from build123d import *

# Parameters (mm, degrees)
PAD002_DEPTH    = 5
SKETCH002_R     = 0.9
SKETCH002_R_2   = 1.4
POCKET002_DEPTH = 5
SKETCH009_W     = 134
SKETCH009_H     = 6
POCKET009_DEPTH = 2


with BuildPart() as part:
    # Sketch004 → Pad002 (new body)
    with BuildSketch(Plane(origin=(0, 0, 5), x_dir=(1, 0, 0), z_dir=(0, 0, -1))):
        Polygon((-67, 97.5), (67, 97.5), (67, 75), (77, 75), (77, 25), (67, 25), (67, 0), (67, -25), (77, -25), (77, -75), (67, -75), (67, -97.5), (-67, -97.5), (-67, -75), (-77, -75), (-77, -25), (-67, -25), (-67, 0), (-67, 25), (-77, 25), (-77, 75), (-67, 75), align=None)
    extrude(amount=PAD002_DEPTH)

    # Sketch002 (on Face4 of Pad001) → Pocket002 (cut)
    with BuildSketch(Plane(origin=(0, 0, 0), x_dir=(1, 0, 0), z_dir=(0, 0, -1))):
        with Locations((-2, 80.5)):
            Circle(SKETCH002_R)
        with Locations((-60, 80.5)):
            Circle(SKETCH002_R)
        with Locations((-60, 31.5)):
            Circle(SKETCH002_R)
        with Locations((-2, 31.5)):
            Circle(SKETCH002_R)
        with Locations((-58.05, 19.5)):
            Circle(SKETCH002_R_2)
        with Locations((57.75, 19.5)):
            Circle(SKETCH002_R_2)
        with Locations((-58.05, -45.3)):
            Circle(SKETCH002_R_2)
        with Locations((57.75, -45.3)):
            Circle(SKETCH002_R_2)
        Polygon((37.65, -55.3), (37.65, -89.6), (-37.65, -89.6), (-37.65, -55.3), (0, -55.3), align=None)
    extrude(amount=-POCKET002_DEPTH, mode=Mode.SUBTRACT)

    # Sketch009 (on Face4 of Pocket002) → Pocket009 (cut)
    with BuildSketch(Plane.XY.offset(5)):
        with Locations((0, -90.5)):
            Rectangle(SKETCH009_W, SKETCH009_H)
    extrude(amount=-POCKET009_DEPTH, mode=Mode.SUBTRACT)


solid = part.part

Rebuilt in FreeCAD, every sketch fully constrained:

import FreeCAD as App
import Part
import Sketcher
from FreeCAD import Vector


def add_polygon(sketch, points):
    """Adds a closed chain of lines whose ends are joined by coincident constraints."""
    first, n = sketch.GeometryCount, len(points)
    for a, b in zip(points, points[1:] + points[:1]):
        sketch.addGeometry(Part.LineSegment(App.Vector(*a, 0), App.Vector(*b, 0)), False)
    for i in range(n):
        sketch.addConstraint(Sketcher.Constraint("Coincident", first + i, 2, first + (i + 1) % n, 1))

doc = App.newDocument("Part")
params = doc.addObject("Spreadsheet::Sheet", "Params")
for row, (alias, value) in enumerate([
    ("sketch1_width", "134 mm"),
    ("sketch1_width2", "10 mm"),
    ("sketch1_height", "50 mm"),
    ("sketch1_height2", "22.5 mm"),
    ("pad1_length", "5 mm"),
    ("sketch2_diameter", "1.8 mm"),
    ("sketch2_diameter2", "2.8 mm"),
    ("sketch2_width", "75.3 mm"),
    ("sketch2_height", "34.3 mm"),
    ("pocket1_length", "5 mm"),
    ("sketch3_width", "134 mm"),
    ("sketch3_height", "6 mm"),
    ("pocket2_length", "2 mm"),
], start=1):
    params.set(f"A{row}", alias)
    params.set(f"B{row}", "=" + value)
    params.setAlias(f"B{row}", alias)

body = doc.addObject("PartDesign::Body", "Body")

sketch1 = body.newObject("Sketcher::SketchObject", "Sketch")
sketch1.AttachmentSupport = (doc.getObject("XY_Plane"), [""])
sketch1.MapMode = "FlatFace"
sketch1.AttachmentOffset = App.Placement(Vector(0, 0, 5), App.Rotation())
add_polygon(sketch1, [(67, -98), (-67, -98), (-67, -75), (-77, -75), (-77, -25), (-67, -25), (-67, 25), (-77, 25), (-77, 75), (-67, 75), (-67, 98), (67, 98), (67, 75), (77, 75), (77, 25), (67, 25), (67, -25), (77, -25), (77, -75), (67, -75)])
sketch1.addConstraint([
    Sketcher.Constraint("Horizontal", 0),
    Sketcher.Constraint("Vertical", 1),
    Sketcher.Constraint("Horizontal", 2),
    Sketcher.Constraint("Vertical", 3),
    Sketcher.Constraint("Horizontal", 4),
    Sketcher.Constraint("Vertical", 5),
    Sketcher.Constraint("Horizontal", 6),
    Sketcher.Constraint("Vertical", 7),
    Sketcher.Constraint("Horizontal", 8),
    Sketcher.Constraint("Vertical", 9),
    Sketcher.Constraint("Horizontal", 10),
    Sketcher.Constraint("Vertical", 11),
    Sketcher.Constraint("Horizontal", 12),
    Sketcher.Constraint("Vertical", 13),
    Sketcher.Constraint("Horizontal", 14),
    Sketcher.Constraint("Vertical", 15),
    Sketcher.Constraint("Horizontal", 16),
    Sketcher.Constraint("Vertical", 17),
    Sketcher.Constraint("Horizontal", 18),
    Sketcher.Constraint("Vertical", 19),
    Sketcher.Constraint("Symmetric", 0, 2, 10, 2, -1, 1),
    Sketcher.Constraint("Symmetric", 2, 2, 12, 2, -1, 1),
    Sketcher.Constraint("Symmetric", 4, 2, 14, 2, -1, 1),
    Sketcher.Constraint("Symmetric", 6, 2, 16, 2, -1, 1),
    Sketcher.Constraint("Symmetric", 8, 2, 18, 2, -1, 1),
    Sketcher.Constraint("Symmetric", 8, 2, 11, 2, -2),
    Sketcher.Constraint("Symmetric", 6, 2, 13, 2, -2),
    Sketcher.Constraint("Vertical", 1, 2, 4, 2),
    Sketcher.Constraint("Equal", 3, 5),
    Sketcher.Constraint("DistanceX", 0, 2, 0, 1, 134.0),
    Sketcher.Constraint("DistanceX", 2, 2, 2, 1, 10.0),
    Sketcher.Constraint("DistanceY", 3, 1, 3, 2, 50.0),
    Sketcher.Constraint("DistanceY", 1, 1, 1, 2, 22.5),
])
sketch1.setExpression("Constraints[49]", "Params.sketch1_width")
sketch1.setExpression("Constraints[50]", "Params.sketch1_width2")
sketch1.setExpression("Constraints[51]", "Params.sketch1_height")
sketch1.setExpression("Constraints[52]", "Params.sketch1_height2")
pad1 = body.newObject("PartDesign::Pad", "Pad")
pad1.Profile = sketch1
pad1.setExpression("Length", "Params.pad1_length")
pad1.Reversed = True

sketch2 = body.newObject("Sketcher::SketchObject", "Sketch001")
sketch2.AttachmentSupport = (doc.getObject("XY_Plane"), [""])
sketch2.MapMode = "FlatFace"
sketch2.addGeometry(Part.Circle(Vector(-2, -80.5, 0), Vector(0, 0, 1), 0.9), False)
sketch2.addGeometry(Part.Circle(Vector(-60, -80.5, 0), Vector(0, 0, 1), 0.9), False)
sketch2.addGeometry(Part.Circle(Vector(-60, -31.5, 0), Vector(0, 0, 1), 0.9), False)
sketch2.addGeometry(Part.Circle(Vector(-2, -31.5, 0), Vector(0, 0, 1), 0.9), False)
sketch2.addGeometry(Part.Circle(Vector(-58, -19.5, 0), Vector(0, 0, 1), 1.4), False)
sketch2.addGeometry(Part.Circle(Vector(57.8, -19.5, 0), Vector(0, 0, 1), 1.4), False)
sketch2.addGeometry(Part.Circle(Vector(-58, 45.3, 0), Vector(0, 0, 1), 1.4), False)
sketch2.addGeometry(Part.Circle(Vector(57.8, 45.3, 0), Vector(0, 0, 1), 1.4), False)
add_polygon(sketch2, [(37.6, 89.6), (37.6, 55.3), (-37.6, 55.3), (-37.6, 89.6)])
sketch2.addConstraint([
    Sketcher.Constraint("Vertical", 8),
    Sketcher.Constraint("Horizontal", 9),
    Sketcher.Constraint("Vertical", 10),
    Sketcher.Constraint("Horizontal", 11),
    Sketcher.Constraint("Equal", 0, 1),
    Sketcher.Constraint("Equal", 1, 2),
    Sketcher.Constraint("Equal", 2, 3),
    Sketcher.Constraint("Equal", 4, 5),
    Sketcher.Constraint("Equal", 5, 6),
    Sketcher.Constraint("Equal", 6, 7),
    Sketcher.Constraint("Horizontal", 0, 3, 1, 3),
    Sketcher.Constraint("Horizontal", 2, 3, 3, 3),
    Sketcher.Constraint("Horizontal", 4, 3, 5, 3),
    Sketcher.Constraint("Horizontal", 6, 3, 7, 3),
    Sketcher.Constraint("Vertical", 1, 3, 2, 3),
    Sketcher.Constraint("Vertical", 0, 3, 3, 3),
    Sketcher.Constraint("Vertical", 4, 3, 6, 3),
    Sketcher.Constraint("Vertical", 5, 3, 7, 3),
    Sketcher.Constraint("Diameter", 0, 1.8),
    Sketcher.Constraint("Diameter", 4, 2.8),
    Sketcher.Constraint("DistanceX", 9, 2, 9, 1, 75.3),
    Sketcher.Constraint("DistanceY", 8, 2, 8, 1, 34.3),
    Sketcher.Constraint("DistanceX", 0, 3, -1, 1, 2.0),
    Sketcher.Constraint("DistanceX", 1, 3, -1, 1, 60.0),
    Sketcher.Constraint("DistanceY", 1, 3, 2, 3, 49.0),
    Sketcher.Constraint("DistanceY", 2, 3, 4, 3, 12.0),
    Sketcher.Constraint("DistanceY", 7, 3, 8, 2, 10.0),
    Sketcher.Constraint("DistanceY", 0, 3, -1, 1, 80.5),
    Sketcher.Constraint("DistanceY", -1, 1, 6, 3, 45.3),
    Sketcher.Constraint("DistanceX", 4, 3, 5, 3, 115.8),
    Sketcher.Constraint("DistanceX", 8, 2, 7, 3, 20.1),
    Sketcher.Constraint("DistanceX", 4, 3, -1, 1, 58.05),
])
sketch2.setExpression("Constraints[22]", "Params.sketch2_diameter")
sketch2.setExpression("Constraints[23]", "Params.sketch2_diameter2")
sketch2.setExpression("Constraints[24]", "Params.sketch2_width")
sketch2.setExpression("Constraints[25]", "Params.sketch2_height")
pocket1 = body.newObject("PartDesign::Pocket", "Pocket")
pocket1.Profile = sketch2
pocket1.setExpression("Length", "Params.pocket1_length")
pocket1.Reversed = True

sketch3 = body.newObject("Sketcher::SketchObject", "Sketch002")
sketch3.AttachmentSupport = (doc.getObject("XY_Plane"), [""])
sketch3.MapMode = "FlatFace"
sketch3.AttachmentOffset = App.Placement(Vector(0, 0, 5), App.Rotation())
add_polygon(sketch3, [(-67, -88), (-67, -94), (67, -94), (67, -88)])
sketch3.addConstraint([
    Sketcher.Constraint("Vertical", 0),
    Sketcher.Constraint("Horizontal", 1),
    Sketcher.Constraint("Vertical", 2),
    Sketcher.Constraint("Horizontal", 3),
    Sketcher.Constraint("DistanceX", 1, 1, 1, 2, 134.0),
    Sketcher.Constraint("DistanceY", 0, 2, 0, 1, 6.0),
    Sketcher.Constraint("DistanceX", 0, 2, -1, 1, 67.0),
    Sketcher.Constraint("DistanceY", 0, 2, -1, 1, 93.5),
])
sketch3.setExpression("Constraints[8]", "Params.sketch3_width")
sketch3.setExpression("Constraints[9]", "Params.sketch3_height")
pocket2 = body.newObject("PartDesign::Pocket", "Pocket001")
pocket2.Profile = sketch3
pocket2.setExpression("Length", "Params.pocket2_length")

doc.recompute()
